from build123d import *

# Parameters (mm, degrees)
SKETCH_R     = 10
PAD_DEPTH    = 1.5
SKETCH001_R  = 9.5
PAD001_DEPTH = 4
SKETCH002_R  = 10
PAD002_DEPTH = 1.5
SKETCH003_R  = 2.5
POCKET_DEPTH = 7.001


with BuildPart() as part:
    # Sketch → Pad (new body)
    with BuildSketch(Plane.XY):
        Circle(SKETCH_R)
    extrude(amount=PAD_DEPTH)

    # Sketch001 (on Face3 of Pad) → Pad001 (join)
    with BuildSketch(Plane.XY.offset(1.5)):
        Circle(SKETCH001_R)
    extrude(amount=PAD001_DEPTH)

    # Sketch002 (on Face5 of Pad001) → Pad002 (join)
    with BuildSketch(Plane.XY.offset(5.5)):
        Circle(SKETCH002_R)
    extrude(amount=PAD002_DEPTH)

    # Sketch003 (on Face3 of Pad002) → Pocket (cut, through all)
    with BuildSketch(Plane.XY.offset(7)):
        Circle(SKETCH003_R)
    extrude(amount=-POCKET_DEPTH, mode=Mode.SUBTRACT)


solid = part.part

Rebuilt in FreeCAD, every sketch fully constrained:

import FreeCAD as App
import Part
import Sketcher

V = App.Vector
Q = App.Units.Quantity

doc = App.newDocument("Part")
body = doc.addObject("PartDesign::Body", "Body")

# Sketch on XY plane
sketch1 = body.newObject("Sketcher::SketchObject", "Sketch")
sketch1.AttachmentSupport = (doc.getObject("XY_Plane"), [""])
sketch1.MapMode = "FlatFace"
sketch1.addGeometry(Part.Circle(V(0, 0, 0), V(0, 0, 1), 10), False)
sketch1.addConstraint(Sketcher.Constraint("Coincident", 0, 3, -1, 1))
sketch1.addConstraint(Sketcher.Constraint("Diameter", 0, Q("20 mm")))
pad1 = body.newObject("PartDesign::Pad", "Pad")
pad1.Profile = sketch1
pad1.Length = 1.5

# Sketch on XY plane
sketch2 = body.newObject("Sketcher::SketchObject", "Sketch001")
sketch2.AttachmentSupport = (doc.getObject("XY_Plane"), [""])
sketch2.MapMode = "FlatFace"
sketch2.AttachmentOffset = App.Placement(V(0, 0, 1.5), App.Rotation())
sketch2.addGeometry(Part.Circle(V(0, 0, 0), V(0, 0, 1), 10), False)
sketch2.addConstraint(Sketcher.Constraint("Coincident", 0, 3, -1, 1))
sketch2.addConstraint(Sketcher.Constraint("Diameter", 0, Q("19 mm")))
pad2 = body.newObject("PartDesign::Pad", "Pad001")
pad2.Profile = sketch2
pad2.Length = 4

# Sketch on XY plane
sketch3 = body.newObject("Sketcher::SketchObject", "Sketch002")
sketch3.AttachmentSupport = (doc.getObject("XY_Plane"), [""])
sketch3.MapMode = "FlatFace"
sketch3.AttachmentOffset = App.Placement(V(0, 0, 5.5), App.Rotation())
sketch3.addGeometry(Part.Circle(V(0, 0, 0), V(0, 0, 1), 10), False)
sketch3.addConstraint(Sketcher.Constraint("Coincident", 0, 3, -1, 1))
sketch3.addConstraint(Sketcher.Constraint("Diameter", 0, Q("20 mm")))
pad3 = body.newObject("PartDesign::Pad", "Pad002")
pad3.Profile = sketch3
pad3.Length = 1.5

# Sketch on XY plane
sketch4 = body.newObject("Sketcher::SketchObject", "Sketch003")
sketch4.AttachmentSupport = (doc.getObject("XY_Plane"), [""])
sketch4.MapMode = "FlatFace"
sketch4.AttachmentOffset = App.Placement(V(0, 0, 7), App.Rotation())
sketch4.addGeometry(Part.Circle(V(0, 0, 0), V(0, 0, 1), 2.5), False)
sketch4.addConstraint(Sketcher.Constraint("Coincident", 0, 3, -1, 1))
sketch4.addConstraint(Sketcher.Constraint("Diameter", 0, Q("5 mm")))
pocket1 = body.newObject("PartDesign::Pocket", "Pocket")
pocket1.Profile = sketch4
pocket1.Type = "ThroughAll"

doc.recompute()
